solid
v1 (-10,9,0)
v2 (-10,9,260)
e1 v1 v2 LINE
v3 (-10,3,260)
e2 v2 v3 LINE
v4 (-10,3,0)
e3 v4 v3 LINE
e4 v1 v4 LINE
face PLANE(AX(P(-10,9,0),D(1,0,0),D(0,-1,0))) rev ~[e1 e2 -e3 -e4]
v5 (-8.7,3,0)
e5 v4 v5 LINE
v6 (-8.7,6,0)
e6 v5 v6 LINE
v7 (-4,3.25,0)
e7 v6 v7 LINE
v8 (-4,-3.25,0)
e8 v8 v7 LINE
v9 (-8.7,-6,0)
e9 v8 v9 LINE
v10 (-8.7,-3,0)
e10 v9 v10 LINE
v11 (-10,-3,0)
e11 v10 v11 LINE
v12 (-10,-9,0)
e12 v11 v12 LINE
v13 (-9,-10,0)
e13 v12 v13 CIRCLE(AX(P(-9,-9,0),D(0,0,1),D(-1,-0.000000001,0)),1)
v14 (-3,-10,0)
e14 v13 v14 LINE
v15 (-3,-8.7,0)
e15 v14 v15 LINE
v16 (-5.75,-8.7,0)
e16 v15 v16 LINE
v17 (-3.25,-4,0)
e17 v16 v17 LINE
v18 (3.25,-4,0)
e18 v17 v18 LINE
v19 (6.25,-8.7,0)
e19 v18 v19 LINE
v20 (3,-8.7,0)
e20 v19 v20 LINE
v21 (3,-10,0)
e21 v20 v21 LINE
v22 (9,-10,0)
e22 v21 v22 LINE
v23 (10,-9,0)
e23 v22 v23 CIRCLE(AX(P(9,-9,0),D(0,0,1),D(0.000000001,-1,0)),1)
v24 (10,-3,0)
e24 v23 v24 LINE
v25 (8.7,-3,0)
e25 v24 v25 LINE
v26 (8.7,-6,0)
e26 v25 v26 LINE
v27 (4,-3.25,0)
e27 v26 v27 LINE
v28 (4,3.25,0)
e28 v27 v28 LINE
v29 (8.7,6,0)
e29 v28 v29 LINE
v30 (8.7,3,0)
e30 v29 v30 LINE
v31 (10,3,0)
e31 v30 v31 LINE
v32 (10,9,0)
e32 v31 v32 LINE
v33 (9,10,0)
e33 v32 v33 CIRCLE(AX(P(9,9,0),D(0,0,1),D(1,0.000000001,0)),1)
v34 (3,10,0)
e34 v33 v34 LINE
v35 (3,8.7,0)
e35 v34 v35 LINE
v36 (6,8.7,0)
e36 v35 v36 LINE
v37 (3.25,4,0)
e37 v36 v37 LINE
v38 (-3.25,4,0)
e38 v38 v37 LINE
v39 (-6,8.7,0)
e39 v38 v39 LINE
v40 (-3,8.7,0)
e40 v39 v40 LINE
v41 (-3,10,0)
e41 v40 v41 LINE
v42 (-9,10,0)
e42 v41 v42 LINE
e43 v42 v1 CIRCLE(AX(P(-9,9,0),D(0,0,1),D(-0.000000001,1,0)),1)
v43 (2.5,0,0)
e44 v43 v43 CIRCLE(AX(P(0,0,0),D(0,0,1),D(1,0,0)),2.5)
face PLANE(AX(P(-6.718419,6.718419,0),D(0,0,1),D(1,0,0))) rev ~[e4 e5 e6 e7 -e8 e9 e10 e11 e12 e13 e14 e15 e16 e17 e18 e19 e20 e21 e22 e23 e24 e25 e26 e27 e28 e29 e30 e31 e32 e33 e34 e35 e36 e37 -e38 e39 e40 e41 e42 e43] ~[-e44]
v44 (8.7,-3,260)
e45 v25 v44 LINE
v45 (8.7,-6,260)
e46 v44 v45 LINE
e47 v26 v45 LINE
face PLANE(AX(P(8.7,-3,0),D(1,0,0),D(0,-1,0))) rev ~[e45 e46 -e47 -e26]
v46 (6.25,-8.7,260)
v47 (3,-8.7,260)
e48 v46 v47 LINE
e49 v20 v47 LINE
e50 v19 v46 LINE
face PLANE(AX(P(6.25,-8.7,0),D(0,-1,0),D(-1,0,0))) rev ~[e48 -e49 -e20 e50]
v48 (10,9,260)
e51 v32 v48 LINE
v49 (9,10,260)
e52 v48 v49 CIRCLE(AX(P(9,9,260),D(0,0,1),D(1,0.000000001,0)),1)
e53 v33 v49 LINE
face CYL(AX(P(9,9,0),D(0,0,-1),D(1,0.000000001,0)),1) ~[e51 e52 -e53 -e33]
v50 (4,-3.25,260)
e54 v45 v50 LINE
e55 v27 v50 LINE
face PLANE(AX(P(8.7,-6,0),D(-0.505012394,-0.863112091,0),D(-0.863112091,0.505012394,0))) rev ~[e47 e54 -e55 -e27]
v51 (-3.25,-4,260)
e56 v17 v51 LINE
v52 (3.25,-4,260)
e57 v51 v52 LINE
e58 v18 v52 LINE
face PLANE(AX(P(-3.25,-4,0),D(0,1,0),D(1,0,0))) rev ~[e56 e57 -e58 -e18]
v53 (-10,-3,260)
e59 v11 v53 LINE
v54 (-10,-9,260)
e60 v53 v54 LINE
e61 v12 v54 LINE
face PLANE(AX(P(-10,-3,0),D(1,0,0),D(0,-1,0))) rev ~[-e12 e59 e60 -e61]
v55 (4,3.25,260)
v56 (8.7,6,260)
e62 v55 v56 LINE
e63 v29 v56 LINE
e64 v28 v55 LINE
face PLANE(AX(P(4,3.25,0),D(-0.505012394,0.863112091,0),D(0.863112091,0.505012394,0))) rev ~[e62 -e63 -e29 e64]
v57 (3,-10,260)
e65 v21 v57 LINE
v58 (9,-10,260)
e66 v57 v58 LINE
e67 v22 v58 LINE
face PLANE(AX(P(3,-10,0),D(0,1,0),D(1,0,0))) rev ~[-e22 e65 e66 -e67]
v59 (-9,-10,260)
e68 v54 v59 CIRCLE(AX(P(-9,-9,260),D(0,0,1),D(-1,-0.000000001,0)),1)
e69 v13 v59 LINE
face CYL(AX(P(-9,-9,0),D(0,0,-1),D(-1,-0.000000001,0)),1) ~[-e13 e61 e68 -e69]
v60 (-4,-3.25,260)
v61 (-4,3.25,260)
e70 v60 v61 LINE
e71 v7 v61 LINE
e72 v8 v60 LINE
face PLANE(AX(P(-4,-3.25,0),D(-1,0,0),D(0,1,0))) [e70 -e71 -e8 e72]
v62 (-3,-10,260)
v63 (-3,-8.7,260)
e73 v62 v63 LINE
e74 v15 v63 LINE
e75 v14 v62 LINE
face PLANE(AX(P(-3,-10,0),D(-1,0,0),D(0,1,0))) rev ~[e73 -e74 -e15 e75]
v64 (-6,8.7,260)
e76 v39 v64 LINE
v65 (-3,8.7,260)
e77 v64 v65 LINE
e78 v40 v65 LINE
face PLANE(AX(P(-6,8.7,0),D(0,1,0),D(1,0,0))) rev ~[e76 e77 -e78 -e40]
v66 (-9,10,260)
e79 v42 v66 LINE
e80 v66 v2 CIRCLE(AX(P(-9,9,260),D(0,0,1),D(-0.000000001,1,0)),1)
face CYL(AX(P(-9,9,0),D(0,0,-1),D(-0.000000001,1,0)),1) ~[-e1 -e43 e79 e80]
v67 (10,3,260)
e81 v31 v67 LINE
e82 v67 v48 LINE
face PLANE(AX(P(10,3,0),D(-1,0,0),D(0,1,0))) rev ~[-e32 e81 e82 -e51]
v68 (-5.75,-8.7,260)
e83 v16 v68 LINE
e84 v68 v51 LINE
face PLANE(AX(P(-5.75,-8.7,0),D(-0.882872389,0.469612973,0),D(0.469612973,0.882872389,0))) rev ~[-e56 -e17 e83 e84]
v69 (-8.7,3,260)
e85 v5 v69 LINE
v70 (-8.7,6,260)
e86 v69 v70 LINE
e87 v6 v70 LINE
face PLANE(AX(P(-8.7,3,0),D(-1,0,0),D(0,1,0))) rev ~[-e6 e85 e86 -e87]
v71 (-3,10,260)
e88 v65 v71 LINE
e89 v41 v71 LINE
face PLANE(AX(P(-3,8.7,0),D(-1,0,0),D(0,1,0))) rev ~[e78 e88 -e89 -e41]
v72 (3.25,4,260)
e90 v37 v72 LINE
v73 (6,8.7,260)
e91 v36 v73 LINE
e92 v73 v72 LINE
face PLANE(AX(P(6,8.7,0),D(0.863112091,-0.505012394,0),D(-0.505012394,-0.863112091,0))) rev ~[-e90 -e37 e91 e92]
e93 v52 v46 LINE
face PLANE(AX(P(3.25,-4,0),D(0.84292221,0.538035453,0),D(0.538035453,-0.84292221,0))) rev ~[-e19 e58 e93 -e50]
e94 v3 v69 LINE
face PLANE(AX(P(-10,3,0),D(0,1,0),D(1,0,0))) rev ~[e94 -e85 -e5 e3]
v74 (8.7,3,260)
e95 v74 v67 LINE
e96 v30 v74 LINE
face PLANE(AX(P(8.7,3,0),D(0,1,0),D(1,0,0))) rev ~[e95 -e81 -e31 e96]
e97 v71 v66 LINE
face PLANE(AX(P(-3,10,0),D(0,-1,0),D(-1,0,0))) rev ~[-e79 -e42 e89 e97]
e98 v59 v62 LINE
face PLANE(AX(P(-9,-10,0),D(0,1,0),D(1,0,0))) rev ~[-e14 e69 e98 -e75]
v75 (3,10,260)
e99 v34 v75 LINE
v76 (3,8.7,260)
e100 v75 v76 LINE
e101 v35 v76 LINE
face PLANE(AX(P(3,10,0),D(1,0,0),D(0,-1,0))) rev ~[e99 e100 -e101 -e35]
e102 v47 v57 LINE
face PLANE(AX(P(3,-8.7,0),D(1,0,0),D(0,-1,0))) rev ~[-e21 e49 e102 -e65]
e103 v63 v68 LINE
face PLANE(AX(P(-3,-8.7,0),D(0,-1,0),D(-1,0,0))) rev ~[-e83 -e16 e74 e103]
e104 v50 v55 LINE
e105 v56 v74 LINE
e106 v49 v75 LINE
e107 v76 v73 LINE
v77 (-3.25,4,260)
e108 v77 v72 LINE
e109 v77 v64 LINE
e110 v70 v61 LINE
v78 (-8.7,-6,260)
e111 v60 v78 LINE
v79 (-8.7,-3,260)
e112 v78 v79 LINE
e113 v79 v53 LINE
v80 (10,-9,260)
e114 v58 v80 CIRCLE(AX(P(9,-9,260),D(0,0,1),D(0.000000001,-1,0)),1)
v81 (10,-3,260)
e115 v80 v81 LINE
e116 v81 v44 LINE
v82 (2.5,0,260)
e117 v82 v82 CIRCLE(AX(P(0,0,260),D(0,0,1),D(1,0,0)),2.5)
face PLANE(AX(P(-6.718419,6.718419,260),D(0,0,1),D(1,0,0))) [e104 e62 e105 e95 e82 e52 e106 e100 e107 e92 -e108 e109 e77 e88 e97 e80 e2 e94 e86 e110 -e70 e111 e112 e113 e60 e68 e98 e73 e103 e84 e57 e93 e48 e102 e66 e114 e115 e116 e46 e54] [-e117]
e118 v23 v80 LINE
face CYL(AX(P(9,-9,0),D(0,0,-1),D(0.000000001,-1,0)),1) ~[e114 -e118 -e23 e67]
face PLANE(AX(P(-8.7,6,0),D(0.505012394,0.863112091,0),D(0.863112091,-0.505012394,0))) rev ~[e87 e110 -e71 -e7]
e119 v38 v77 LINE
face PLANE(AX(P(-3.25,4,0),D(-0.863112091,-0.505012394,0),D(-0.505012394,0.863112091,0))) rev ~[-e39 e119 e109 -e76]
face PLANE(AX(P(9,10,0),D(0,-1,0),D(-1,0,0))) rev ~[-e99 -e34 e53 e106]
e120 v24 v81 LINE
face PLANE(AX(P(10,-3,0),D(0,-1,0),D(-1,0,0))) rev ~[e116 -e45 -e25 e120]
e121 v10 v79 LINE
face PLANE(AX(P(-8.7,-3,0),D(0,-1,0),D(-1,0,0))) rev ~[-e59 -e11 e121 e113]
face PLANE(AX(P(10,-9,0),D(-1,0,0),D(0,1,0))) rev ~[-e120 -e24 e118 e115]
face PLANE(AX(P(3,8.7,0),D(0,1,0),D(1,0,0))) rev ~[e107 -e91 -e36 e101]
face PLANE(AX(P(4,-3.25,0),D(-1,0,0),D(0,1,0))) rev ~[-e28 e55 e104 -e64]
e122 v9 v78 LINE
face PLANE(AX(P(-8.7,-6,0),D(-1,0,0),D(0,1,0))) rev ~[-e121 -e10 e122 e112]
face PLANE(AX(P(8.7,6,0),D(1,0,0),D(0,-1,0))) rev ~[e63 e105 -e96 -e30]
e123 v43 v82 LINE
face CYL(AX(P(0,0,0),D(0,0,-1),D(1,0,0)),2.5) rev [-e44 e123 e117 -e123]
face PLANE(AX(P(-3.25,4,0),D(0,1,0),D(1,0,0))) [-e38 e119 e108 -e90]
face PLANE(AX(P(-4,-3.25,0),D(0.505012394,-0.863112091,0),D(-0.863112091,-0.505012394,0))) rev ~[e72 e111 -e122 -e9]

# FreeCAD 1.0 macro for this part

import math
import FreeCAD as App
import Part
import Sketcher

V = App.Vector

doc = App.newDocument("Part")
body = doc.addObject("PartDesign::Body", "Body")

# Sketch on XY plane
sketch1 = body.newObject("Sketcher::SketchObject", "Sketch")
sketch1.AttachmentSupport = (doc.getObject("XY_Plane"), [""])
sketch1.MapMode = "FlatFace"
sketch1.addGeometry(Part.LineSegment(V(-3, 8.7, 0), V(-3, 10, 0)), False)
sketch1.addGeometry(Part.LineSegment(V(-3, 10, 0), V(-9, 10, 0)), False)
sketch1.addGeometry(Part.ArcOfCircle(Part.Circle(V(-9, 9, 0), V(0, 0, 1), 1), math.radians(90), math.radians(180)), False)
sketch1.addGeometry(Part.LineSegment(V(-10, 9, 0), V(-10, 3, 0)), False)
sketch1.addGeometry(Part.LineSegment(V(-10, 3, 0), V(-8.7, 3, 0)), False)
sketch1.addGeometry(Part.LineSegment(V(-8.7, 3, 0), V(-8.7, 6, 0)), False)
sketch1.addGeometry(Part.LineSegment(V(-8.7, 6, 0), V(-4, 3.25, 0)), False)
sketch1.addGeometry(Part.LineSegment(V(-4, 3.25, 0), V(-4, -3.25, 0)), False)
sketch1.addGeometry(Part.LineSegment(V(-4, -3.25, 0), V(-8.7, -6, 0)), False)
sketch1.addGeometry(Part.LineSegment(V(-8.7, -6, 0), V(-8.7, -3, 0)), False)
sketch1.addGeometry(Part.LineSegment(V(-8.7, -3, 0), V(-10, -3, 0)), False)
sketch1.addGeometry(Part.LineSegment(V(-10, -3, 0), V(-10, -9, 0)), False)
sketch1.addGeometry(Part.ArcOfCircle(Part.Circle(V(-9, -9, 0), V(0, 0, 1), 1), math.radians(-180), math.radians(-90)), False)
sketch1.addGeometry(Part.LineSegment(V(-9, -10, 0), V(-3, -10, 0)), False)
sketch1.addGeometry(Part.LineSegment(V(-3, -10, 0), V(-3, -8.7, 0)), False)
sketch1.addGeometry(Part.LineSegment(V(-3, -8.7, 0), V(-5.75, -8.7, 0)), False)
sketch1.addGeometry(Part.LineSegment(V(-5.75, -8.7, 0), V(-3.25, -4, 0)), False)
sketch1.addGeometry(Part.LineSegment(V(-3.25, -4, 0), V(3.25, -4, 0)), False)
sketch1.addGeometry(Part.LineSegment(V(3.25, -4, 0), V(6.25, -8.7, 0)), False)
sketch1.addGeometry(Part.LineSegment(V(6.25, -8.7, 0), V(3, -8.7, 0)), False)
sketch1.addGeometry(Part.LineSegment(V(3, -8.7, 0), V(3, -10, 0)), False)
sketch1.addGeometry(Part.LineSegment(V(3, -10, 0), V(9, -10, 0)), False)
sketch1.addGeometry(Part.ArcOfCircle(Part.Circle(V(9, -9, 0), V(0, 0, 1), 1), math.radians(-90), math.radians(0)), False)
sketch1.addGeometry(Part.LineSegment(V(10, -9, 0), V(10, -3, 0)), False)
sketch1.addGeometry(Part.LineSegment(V(10, -3, 0), V(8.7, -3, 0)), False)
sketch1.addGeometry(Part.LineSegment(V(8.7, -3, 0), V(8.7, -6, 0)), False)
sketch1.addGeometry(Part.LineSegment(V(8.7, -6, 0), V(4, -3.25, 0)), False)
sketch1.addGeometry(Part.LineSegment(V(4, -3.25, 0), V(4, 3.25, 0)), False)
sketch1.addGeometry(Part.LineSegment(V(4, 3.25, 0), V(8.7, 6, 0)), False)
sketch1.addGeometry(Part.LineSegment(V(8.7, 6, 0), V(8.7, 3, 0)), False)
sketch1.addGeometry(Part.LineSegment(V(8.7, 3, 0), V(10, 3, 0)), False)
sketch1.addGeometry(Part.LineSegment(V(10, 3, 0), V(10, 9, 0)), False)
sketch1.addGeometry(Part.ArcOfCircle(Part.Circle(V(9, 9, 0), V(0, 0, 1), 1), math.radians(0), math.radians(90)), False)
sketch1.addGeometry(Part.LineSegment(V(9, 10, 0), V(3, 10, 0)), False)
sketch1.addGeometry(Part.LineSegment(V(3, 10, 0), V(3, 8.7, 0)), False)
sketch1.addGeometry(Part.LineSegment(V(3, 8.7, 0), V(6, 8.7, 0)), False)
sketch1.addGeometry(Part.LineSegment(V(6, 8.7, 0), V(3.25, 4, 0)), False)
sketch1.addGeometry(Part.LineSegment(V(3.25, 4, 0), V(-3.25, 4, 0)), False)
sketch1.addGeometry(Part.LineSegment(V(-3.25, 4, 0), V(-6, 8.7, 0)), False)
sketch1.addGeometry(Part.LineSegment(V(-6, 8.7, 0), V(-3, 8.7, 0)), False)
sketch1.addGeometry(Part.Circle(V(0, 0, 0), V(0, 0, 1), 2.5), False)
sketch1.addConstraint(Sketcher.Constraint("Coincident", 0, 2, 1, 1))
sketch1.addConstraint(Sketcher.Constraint("Tangent", 1, 2, 2, 1))
sketch1.addConstraint(Sketcher.Constraint("Tangent", 2, 2, 3, 1))
sketch1.addConstraint(Sketcher.Constraint("Coincident", 3, 2, 4, 1))
sketch1.addConstraint(Sketcher.Constraint("Coincident", 4, 2, 5, 1))
sketch1.addConstraint(Sketcher.Constraint("Coincident", 5, 2, 6, 1))
sketch1.addConstraint(Sketcher.Constraint("Coincident", 6, 2, 7, 1))
sketch1.addConstraint(Sketcher.Constraint("Coincident", 7, 2, 8, 1))
sketch1.addConstraint(Sketcher.Constraint("Coincident", 8, 2, 9, 1))
sketch1.addConstraint(Sketcher.Constraint("Coincident", 9, 2, 10, 1))
sketch1.addConstraint(Sketcher.Constraint("Coincident", 10, 2, 11, 1))
sketch1.addConstraint(Sketcher.Constraint("Tangent", 11, 2, 12, 1))
sketch1.addConstraint(Sketcher.Constraint("Tangent", 12, 2, 13, 1))
sketch1.addConstraint(Sketcher.Constraint("Coincident", 13, 2, 14, 1))
sketch1.addConstraint(Sketcher.Constraint("Coincident", 14, 2, 15, 1))
sketch1.addConstraint(Sketcher.Constraint("Coincident", 15, 2, 16, 1))
sketch1.addConstraint(Sketcher.Constraint("Coincident", 16, 2, 17, 1))
sketch1.addConstraint(Sketcher.Constraint("Coincident", 17, 2, 18, 1))
sketch1.addConstraint(Sketcher.Constraint("Coincident", 18, 2, 19, 1))
sketch1.addConstraint(Sketcher.Constraint("Coincident", 19, 2, 20, 1))
sketch1.addConstraint(Sketcher.Constraint("Coincident", 20, 2, 21, 1))
sketch1.addConstraint(Sketcher.Constraint("Tangent", 21, 2, 22, 1))
sketch1.addConstraint(Sketcher.Constraint("Tangent", 22, 2, 23, 1))
sketch1.addConstraint(Sketcher.Constraint("Coincident", 23, 2, 24, 1))
sketch1.addConstraint(Sketcher.Constraint("Coincident", 24, 2, 25, 1))
sketch1.addConstraint(Sketcher.Constraint("Coincident", 25, 2, 26, 1))
sketch1.addConstraint(Sketcher.Constraint("Coincident", 26, 2, 27, 1))
sketch1.addConstraint(Sketcher.Constraint("Coincident", 27, 2, 28, 1))
sketch1.addConstraint(Sketcher.Constraint("Coincident", 28, 2, 29, 1))
sketch1.addConstraint(Sketcher.Constraint("Coincident", 29, 2, 30, 1))
sketch1.addConstraint(Sketcher.Constraint("Coincident", 30, 2, 31, 1))
sketch1.addConstraint(Sketcher.Constraint("Tangent", 31, 2, 32, 1))
sketch1.addConstraint(Sketcher.Constraint("Tangent", 32, 2, 33, 1))
sketch1.addConstraint(Sketcher.Constraint("Coincident", 33, 2, 34, 1))
sketch1.addConstraint(Sketcher.Constraint("Coincident", 34, 2, 35, 1))
sketch1.addConstraint(Sketcher.Constraint("Coincident", 35, 2, 36, 1))
sketch1.addConstraint(Sketcher.Constraint("Coincident", 36, 2, 37, 1))
sketch1.addConstraint(Sketcher.Constraint("Coincident", 37, 2, 38, 1))
sketch1.addConstraint(Sketcher.Constraint("Coincident", 38, 2, 39, 1))
sketch1.addConstraint(Sketcher.Constraint("Coincident", 39, 2, 0, 1))
sketch1.addConstraint(Sketcher.Constraint("Vertical", 0))
sketch1.addConstraint(Sketcher.Constraint("Horizontal", 1))
sketch1.addConstraint(Sketcher.Constraint("Vertical", 3))
sketch1.addConstraint(Sketcher.Constraint("Horizontal", 4))
sketch1.addConstraint(Sketcher.Constraint("Vertical", 5))
sketch1.addConstraint(Sketcher.Constraint("Vertical", 7))
sketch1.addConstraint(Sketcher.Constraint("Vertical", 9))
sketch1.addConstraint(Sketcher.Constraint("Horizontal", 10))
sketch1.addConstraint(Sketcher.Constraint("Vertical", 11))
sketch1.addConstraint(Sketcher.Constraint("Horizontal", 13))
sketch1.addConstraint(Sketcher.Constraint("Vertical", 14))
sketch1.addConstraint(Sketcher.Constraint("Horizontal", 15))
sketch1.addConstraint(Sketcher.Constraint("Horizontal", 17))
sketch1.addConstraint(Sketcher.Constraint("Horizontal", 19))
sketch1.addConstraint(Sketcher.Constraint("Vertical", 20))
sketch1.addConstraint(Sketcher.Constraint("Horizontal", 21))
sketch1.addConstraint(Sketcher.Constraint("Vertical", 23))
sketch1.addConstraint(Sketcher.Constraint("Horizontal", 24))
sketch1.addConstraint(Sketcher.Constraint("Vertical", 25))
sketch1.addConstraint(Sketcher.Constraint("Vertical", 27))
sketch1.addConstraint(Sketcher.Constraint("Vertical", 29))
sketch1.addConstraint(Sketcher.Constraint("Horizontal", 30))
sketch1.addConstraint(Sketcher.Constraint("Vertical", 31))
sketch1.addConstraint(Sketcher.Constraint("Horizontal", 33))
sketch1.addConstraint(Sketcher.Constraint("Vertical", 34))
sketch1.addConstraint(Sketcher.Constraint("Horizontal", 35))
sketch1.addConstraint(Sketcher.Constraint("Horizontal", 37))
sketch1.addConstraint(Sketcher.Constraint("Horizontal", 39))
sketch1.addConstraint(Sketcher.Constraint("Coincident", 40, 3, -1, 1))
sketch1.addConstraint(Sketcher.Constraint("Equal", 2, 12))
sketch1.addConstraint(Sketcher.Constraint("Equal", 12, 22))
sketch1.addConstraint(Sketcher.Constraint("Equal", 22, 32))
sketch1.addConstraint(Sketcher.Constraint("Symmetric", 2, 3, 22, 3, -1, 1))
sketch1.addConstraint(Sketcher.Constraint("Symmetric", 12, 3, 32, 3, -1, 1))
sketch1.addConstraint(Sketcher.Constraint("Symmetric", 4, 2, 24, 2, -1, 1))
sketch1.addConstraint(Sketcher.Constraint("Symmetric", 6, 2, 26, 2, -1, 1))
sketch1.addConstraint(Sketcher.Constraint("Symmetric", 8, 2, 28, 2, -1, 1))
sketch1.addConstraint(Sketcher.Constraint("Symmetric", 14, 2, 34, 2, -1, 1))
sketch1.addConstraint(Sketcher.Constraint("Symmetric", 16, 2, 36, 2, -1, 1))
sketch1.addConstraint(Sketcher.Constraint("Symmetric", 19, 2, 39, 2, -1, 1))
sketch1.addConstraint(Sketcher.Constraint("Symmetric", 12, 3, 22, 3, -2))
sketch1.addConstraint(Sketcher.Constraint("Symmetric", 14, 2, 19, 2, -2))
sketch1.addConstraint(Sketcher.Constraint("Symmetric", 9, 2, 24, 2, -2))
sketch1.addConstraint(Sketcher.Constraint("Parallel", 6, 26))
sketch1.addConstraint(Sketcher.Constraint("Parallel", 8, 28))
sketch1.addConstraint(Sketcher.Constraint("Perpendicular", 26, 36))
sketch1.addConstraint(Sketcher.Constraint("Perpendicular", 28, 38))
sketch1.addConstraint(Sketcher.Constraint("Horizontal", 8, 2, 25, 2))
sketch1.addConstraint(Sketcher.Constraint("Horizontal", 7, 2, 26, 2))
sketch1.addConstraint(Sketcher.Constraint("Horizontal", 4, 2, 29, 2))
sketch1.addConstraint(Sketcher.Constraint("Vertical", 17, 2, 36, 2))
sketch1.addConstraint(Sketcher.Constraint("Vertical", 16, 2, 37, 2))
sketch1.addConstraint(Sketcher.Constraint("Equal", 30, 0))
sketch1.addConstraint(Sketcher.Constraint("Equal", 33, 3))
sketch1.addConstraint(Sketcher.Constraint("Equal", 39, 5))
sketch1.addConstraint(Sketcher.Constraint("Equal", 37, 7))
sketch1.addConstraint(Sketcher.Constraint("Equal", 28, 36))
sketch1.addConstraint(Sketcher.Constraint("Diameter", 40, 5.0))
sketch1.addConstraint(Sketcher.Constraint("Radius", 2, 1.0))
sketch1.addConstraint(Sketcher.Constraint("DistanceX", 1, 2, 1, 1, 6.0))
sketch1.addConstraint(Sketcher.Constraint("DistanceX", 35, 1, 35, 2, 3.0))
sketch1.addConstraint(Sketcher.Constraint("DistanceX", 4, 1, 4, 2, 1.3))
sketch1.addConstraint(Sketcher.Constraint("DistanceX", 17, 1, 17, 2, 6.5))
sketch1.addConstraint(Sketcher.Constraint("DistanceX", 2, 3, -1, 1, 9.0))
sketch1.addConstraint(Sketcher.Constraint("DistanceX", 6, 2, -1, 1, 4.0))
sketch1.addConstraint(Sketcher.Constraint("DistanceX", 17, 2, 18, 2, 3.0))
sketch1.addConstraint(Sketcher.Constraint("DistanceX", 15, 2, 15, 1, 2.75))
pad1 = body.newObject("PartDesign::Pad", "Pad")
pad1.Profile = sketch1
pad1.Length = 260

doc.recompute()
